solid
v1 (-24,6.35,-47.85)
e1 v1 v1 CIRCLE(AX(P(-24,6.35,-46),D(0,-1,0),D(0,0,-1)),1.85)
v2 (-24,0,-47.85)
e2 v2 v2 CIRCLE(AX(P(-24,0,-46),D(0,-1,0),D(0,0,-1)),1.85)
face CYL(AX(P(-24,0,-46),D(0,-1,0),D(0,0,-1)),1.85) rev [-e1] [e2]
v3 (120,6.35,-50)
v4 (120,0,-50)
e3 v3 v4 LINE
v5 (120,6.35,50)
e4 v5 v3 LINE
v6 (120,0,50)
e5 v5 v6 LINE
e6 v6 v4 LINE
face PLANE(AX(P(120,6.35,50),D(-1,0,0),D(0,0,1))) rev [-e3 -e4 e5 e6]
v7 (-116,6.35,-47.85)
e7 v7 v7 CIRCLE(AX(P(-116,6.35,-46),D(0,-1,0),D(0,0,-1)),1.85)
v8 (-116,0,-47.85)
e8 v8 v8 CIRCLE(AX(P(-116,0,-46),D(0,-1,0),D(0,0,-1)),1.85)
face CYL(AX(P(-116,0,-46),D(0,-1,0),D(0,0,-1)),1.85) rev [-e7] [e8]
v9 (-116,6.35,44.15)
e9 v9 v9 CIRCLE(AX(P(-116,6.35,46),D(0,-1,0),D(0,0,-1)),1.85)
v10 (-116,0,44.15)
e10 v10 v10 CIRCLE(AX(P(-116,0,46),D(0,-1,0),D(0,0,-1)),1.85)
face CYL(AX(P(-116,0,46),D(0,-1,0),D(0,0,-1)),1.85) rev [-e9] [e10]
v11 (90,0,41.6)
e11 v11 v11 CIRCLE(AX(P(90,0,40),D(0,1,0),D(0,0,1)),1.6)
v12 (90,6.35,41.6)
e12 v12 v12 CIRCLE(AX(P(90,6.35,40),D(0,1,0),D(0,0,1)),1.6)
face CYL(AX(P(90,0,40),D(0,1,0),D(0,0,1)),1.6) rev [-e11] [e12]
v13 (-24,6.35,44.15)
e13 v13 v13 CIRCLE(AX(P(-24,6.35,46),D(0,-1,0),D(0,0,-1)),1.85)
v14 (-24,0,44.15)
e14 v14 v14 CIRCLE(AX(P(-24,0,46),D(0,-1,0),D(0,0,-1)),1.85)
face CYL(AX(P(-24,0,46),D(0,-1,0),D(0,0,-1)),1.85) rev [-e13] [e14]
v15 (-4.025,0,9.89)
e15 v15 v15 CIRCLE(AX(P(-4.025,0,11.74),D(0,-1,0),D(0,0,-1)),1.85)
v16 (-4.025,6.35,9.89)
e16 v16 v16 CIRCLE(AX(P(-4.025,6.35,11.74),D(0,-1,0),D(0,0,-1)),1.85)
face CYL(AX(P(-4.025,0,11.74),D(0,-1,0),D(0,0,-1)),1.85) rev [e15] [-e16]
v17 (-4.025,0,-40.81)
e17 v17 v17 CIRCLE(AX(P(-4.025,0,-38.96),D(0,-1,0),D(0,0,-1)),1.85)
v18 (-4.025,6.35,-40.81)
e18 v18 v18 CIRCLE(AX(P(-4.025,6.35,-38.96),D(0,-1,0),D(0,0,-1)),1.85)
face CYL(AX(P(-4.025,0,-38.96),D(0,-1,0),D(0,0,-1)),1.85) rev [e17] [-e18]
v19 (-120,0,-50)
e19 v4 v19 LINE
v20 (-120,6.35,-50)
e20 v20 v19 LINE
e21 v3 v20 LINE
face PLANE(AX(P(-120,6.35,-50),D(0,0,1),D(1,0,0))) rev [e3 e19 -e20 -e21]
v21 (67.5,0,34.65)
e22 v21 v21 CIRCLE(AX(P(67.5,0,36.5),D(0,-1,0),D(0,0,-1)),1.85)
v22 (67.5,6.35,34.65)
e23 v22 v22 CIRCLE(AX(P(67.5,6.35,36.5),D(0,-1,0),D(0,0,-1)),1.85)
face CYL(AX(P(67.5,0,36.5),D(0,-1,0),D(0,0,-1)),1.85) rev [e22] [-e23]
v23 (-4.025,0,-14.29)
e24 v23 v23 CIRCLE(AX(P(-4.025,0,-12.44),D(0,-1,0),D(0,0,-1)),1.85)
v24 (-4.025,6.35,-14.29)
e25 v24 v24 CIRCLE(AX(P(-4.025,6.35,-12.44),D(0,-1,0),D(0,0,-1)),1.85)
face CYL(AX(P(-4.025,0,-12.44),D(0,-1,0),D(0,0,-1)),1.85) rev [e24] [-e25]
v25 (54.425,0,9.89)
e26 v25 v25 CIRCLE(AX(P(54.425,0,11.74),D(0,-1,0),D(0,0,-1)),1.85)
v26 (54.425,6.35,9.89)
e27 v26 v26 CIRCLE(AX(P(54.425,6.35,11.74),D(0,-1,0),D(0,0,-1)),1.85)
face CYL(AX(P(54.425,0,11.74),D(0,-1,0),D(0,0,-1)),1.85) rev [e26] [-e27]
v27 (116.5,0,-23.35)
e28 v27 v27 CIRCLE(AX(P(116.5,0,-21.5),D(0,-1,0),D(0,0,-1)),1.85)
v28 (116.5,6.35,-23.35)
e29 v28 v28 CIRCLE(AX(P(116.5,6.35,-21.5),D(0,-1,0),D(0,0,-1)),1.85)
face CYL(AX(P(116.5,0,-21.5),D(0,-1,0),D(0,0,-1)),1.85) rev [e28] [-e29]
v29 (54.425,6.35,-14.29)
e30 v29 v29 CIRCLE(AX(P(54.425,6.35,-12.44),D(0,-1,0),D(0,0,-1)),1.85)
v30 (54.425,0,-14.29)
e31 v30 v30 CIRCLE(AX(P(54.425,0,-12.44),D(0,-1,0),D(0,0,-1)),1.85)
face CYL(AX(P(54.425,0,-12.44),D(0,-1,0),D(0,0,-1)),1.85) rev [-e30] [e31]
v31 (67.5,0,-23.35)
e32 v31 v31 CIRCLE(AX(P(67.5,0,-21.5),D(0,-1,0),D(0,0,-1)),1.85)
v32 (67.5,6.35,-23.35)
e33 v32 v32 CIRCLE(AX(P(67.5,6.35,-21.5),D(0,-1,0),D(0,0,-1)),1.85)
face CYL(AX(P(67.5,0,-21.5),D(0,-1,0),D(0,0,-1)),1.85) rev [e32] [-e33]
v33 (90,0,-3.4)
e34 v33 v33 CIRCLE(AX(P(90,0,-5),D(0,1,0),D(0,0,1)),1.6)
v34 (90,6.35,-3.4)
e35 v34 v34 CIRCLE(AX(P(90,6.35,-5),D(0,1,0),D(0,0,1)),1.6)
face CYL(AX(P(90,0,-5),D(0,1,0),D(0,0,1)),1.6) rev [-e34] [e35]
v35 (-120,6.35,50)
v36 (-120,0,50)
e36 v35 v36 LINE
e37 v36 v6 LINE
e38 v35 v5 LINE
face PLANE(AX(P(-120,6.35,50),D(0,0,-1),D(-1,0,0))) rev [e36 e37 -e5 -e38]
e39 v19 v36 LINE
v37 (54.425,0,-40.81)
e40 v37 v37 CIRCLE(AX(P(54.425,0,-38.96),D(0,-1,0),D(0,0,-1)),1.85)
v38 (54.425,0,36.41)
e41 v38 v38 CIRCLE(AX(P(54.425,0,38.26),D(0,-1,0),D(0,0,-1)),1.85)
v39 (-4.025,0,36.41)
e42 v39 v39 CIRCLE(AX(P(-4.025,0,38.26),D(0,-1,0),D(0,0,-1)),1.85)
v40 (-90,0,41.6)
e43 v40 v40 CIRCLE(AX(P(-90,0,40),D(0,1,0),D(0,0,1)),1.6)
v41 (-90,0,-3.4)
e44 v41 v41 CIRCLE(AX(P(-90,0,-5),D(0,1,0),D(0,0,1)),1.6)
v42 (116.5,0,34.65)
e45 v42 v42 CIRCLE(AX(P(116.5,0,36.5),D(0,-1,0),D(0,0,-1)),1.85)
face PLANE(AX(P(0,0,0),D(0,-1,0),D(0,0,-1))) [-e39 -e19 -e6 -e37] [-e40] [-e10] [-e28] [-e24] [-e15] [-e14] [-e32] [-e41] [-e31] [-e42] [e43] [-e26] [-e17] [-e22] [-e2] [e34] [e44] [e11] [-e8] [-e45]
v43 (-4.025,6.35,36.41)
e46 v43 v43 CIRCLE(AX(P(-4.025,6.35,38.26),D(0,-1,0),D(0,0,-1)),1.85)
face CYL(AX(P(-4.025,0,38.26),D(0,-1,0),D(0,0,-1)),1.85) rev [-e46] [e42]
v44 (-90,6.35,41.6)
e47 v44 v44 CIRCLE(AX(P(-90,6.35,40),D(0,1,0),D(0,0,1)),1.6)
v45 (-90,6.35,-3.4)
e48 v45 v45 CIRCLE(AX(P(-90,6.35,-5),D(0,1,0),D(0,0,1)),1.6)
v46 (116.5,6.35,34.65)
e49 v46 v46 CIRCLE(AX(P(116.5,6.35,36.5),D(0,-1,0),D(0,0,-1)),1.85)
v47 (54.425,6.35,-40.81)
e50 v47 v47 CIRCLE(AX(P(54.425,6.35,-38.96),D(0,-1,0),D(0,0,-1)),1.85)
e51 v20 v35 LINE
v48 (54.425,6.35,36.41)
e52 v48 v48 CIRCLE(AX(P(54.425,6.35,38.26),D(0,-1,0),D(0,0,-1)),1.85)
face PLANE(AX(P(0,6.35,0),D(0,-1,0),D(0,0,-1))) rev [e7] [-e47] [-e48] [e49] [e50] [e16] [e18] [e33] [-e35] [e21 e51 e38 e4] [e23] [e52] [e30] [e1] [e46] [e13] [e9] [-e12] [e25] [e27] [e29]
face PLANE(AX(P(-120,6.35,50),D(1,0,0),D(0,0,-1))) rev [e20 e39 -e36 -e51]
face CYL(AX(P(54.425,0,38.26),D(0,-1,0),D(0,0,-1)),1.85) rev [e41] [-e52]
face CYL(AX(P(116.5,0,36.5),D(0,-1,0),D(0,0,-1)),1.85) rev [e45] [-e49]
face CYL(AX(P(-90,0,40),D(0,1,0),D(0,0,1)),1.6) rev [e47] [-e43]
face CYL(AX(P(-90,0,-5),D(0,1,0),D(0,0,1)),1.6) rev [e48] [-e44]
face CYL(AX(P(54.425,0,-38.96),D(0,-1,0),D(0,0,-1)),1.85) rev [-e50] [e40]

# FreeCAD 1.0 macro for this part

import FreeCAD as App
import Part
import Sketcher

V = App.Vector
Q = App.Units.Quantity

doc = App.newDocument("Part")
body = doc.addObject("PartDesign::Body", "Body")

# Sketch on XZ plane
sketch1 = body.newObject("Sketcher::SketchObject", "Sketch")
sketch1.AttachmentSupport = (doc.getObject("XZ_Plane"), [""])
sketch1.MapMode = "FlatFace"
sketch1.addGeometry([
    Part.LineSegment(V(-120, -50, 0), V(-120, 50, 0)),
    Part.LineSegment(V(-120, 50, 0), V(120, 50, 0)),
    Part.LineSegment(V(120, 50, 0), V(120, -50, 0)),
    Part.LineSegment(V(120, -50, 0), V(-120, -50, 0)),
], False)
sketch1.addConstraint([
    Sketcher.Constraint("Coincident", 0, 2, 1, 1),
    Sketcher.Constraint("Coincident", 1, 2, 2, 1),
    Sketcher.Constraint("Coincident", 2, 2, 3, 1),
    Sketcher.Constraint("Coincident", 3, 2, 0, 1),
    Sketcher.Constraint("Vertical", 0),
    Sketcher.Constraint("Horizontal", 1),
    Sketcher.Constraint("Vertical", 2),
    Sketcher.Constraint("Horizontal", 3),
    Sketcher.Constraint("Symmetric", 0, 2, 2, 2, -1, 1),
    Sketcher.Constraint("DistanceX", 1, 1, 1, 2, Q("240 mm")),
    Sketcher.Constraint("DistanceY", 0, 1, 0, 2, Q("100 mm")),
])
pad1 = body.newObject("PartDesign::Pad", "Pad")
pad1.Profile = sketch1
pad1.Length = 6.35
pad1.Reversed = True

# Sketch on XZ plane
sketch2 = body.newObject("Sketcher::SketchObject", "Sketch001")
sketch2.AttachmentSupport = (doc.getObject("XZ_Plane"), [""])
sketch2.MapMode = "FlatFace"
sketch2.addGeometry([
    Part.Circle(V(-4.025, -12.44, 0), V(0, 0, 1), 1.85),  # 0
    Part.Circle(V(-24, -46, 0), V(0, 0, 1), 1.85),  # 1
    Part.Circle(V(-4.025, -38.96, 0), V(0, 0, 1), 1.85),  # 2
    Part.Circle(V(-4.025, 11.74, 0), V(0, 0, 1), 1.85),  # 3
    Part.Circle(V(-4.025, 38.26, 0), V(0, 0, 1), 1.85),  # 4
    Part.Circle(V(-24, 46, 0), V(0, 0, 1), 1.85),  # 5
    Part.Circle(V(-116, 46, 0), V(0, 0, 1), 1.85),  # 6
    Part.Circle(V(54.425, 38.26, 0), V(0, 0, 1), 1.85),  # 7
    Part.Circle(V(54.425, 11.74, 0), V(0, 0, 1), 1.85),  # 8
    Part.Circle(V(54.425, -12.44, 0), V(0, 0, 1), 1.85),  # 9
    Part.Circle(V(54.425, -38.96, 0), V(0, 0, 1), 1.85),  # 10
    Part.Circle(V(116.5, 36.5, 0), V(0, 0, 1), 1.85),  # 11
    Part.Circle(V(116.5, -21.5, 0), V(0, 0, 1), 1.85),  # 12
    Part.Circle(V(67.5, -21.5, 0), V(0, 0, 1), 1.85),  # 13
    Part.Circle(V(67.5, 36.5, 0), V(0, 0, 1), 1.85),  # 14
    Part.Circle(V(-116, -46, 0), V(0, 0, 1), 1.85),  # 15
], False)
sketch2.addConstraint([
    Sketcher.Constraint("Equal", 0, 1),
    Sketcher.Constraint("Equal", 1, 2),
    Sketcher.Constraint("Equal", 2, 3),
    Sketcher.Constraint("Equal", 3, 4),
    Sketcher.Constraint("Equal", 4, 5),
    Sketcher.Constraint("Equal", 5, 6),
    Sketcher.Constraint("Equal", 6, 7),
    Sketcher.Constraint("Equal", 7, 8),
    Sketcher.Constraint("Equal", 8, 9),
    Sketcher.Constraint("Equal", 9, 10),
    Sketcher.Constraint("Equal", 10, 11),
    Sketcher.Constraint("Equal", 11, 12),
    Sketcher.Constraint("Equal", 12, 13),
    Sketcher.Constraint("Equal", 13, 14),
    Sketcher.Constraint("Equal", 14, 15),
    Sketcher.Constraint("Symmetric", 1, 3, 5, 3, -1),
    Sketcher.Constraint("Symmetric", 6, 3, 15, 3, -1),
    Sketcher.Constraint("Horizontal", 5, 3, 6, 3),
    Sketcher.Constraint("Horizontal", 4, 3, 7, 3),
    Sketcher.Constraint("Horizontal", 3, 3, 8, 3),
    Sketcher.Constraint("Horizontal", 0, 3, 9, 3),
    Sketcher.Constraint("Horizontal", 2, 3, 10, 3),
    Sketcher.Constraint("Horizontal", 12, 3, 13, 3),
    Sketcher.Constraint("Horizontal", 11, 3, 14, 3),
    Sketcher.Constraint("Vertical", 0, 3, 2, 3),
    Sketcher.Constraint("Vertical", 2, 3, 3, 3),
    Sketcher.Constraint("Vertical", 3, 3, 4, 3),
    Sketcher.Constraint("Vertical", 7, 3, 8, 3),
    Sketcher.Constraint("Vertical", 8, 3, 9, 3),
    Sketcher.Constraint("Vertical", 9, 3, 10, 3),
    Sketcher.Constraint("Vertical", 11, 3, 12, 3),
    Sketcher.Constraint("Vertical", 13, 3, 14, 3),
    Sketcher.Constraint("Diameter", 0, Q("3.7 mm")),
    Sketcher.Constraint("DistanceX", 1, 3, -1, 1, Q("24 mm")),
    Sketcher.Constraint("DistanceY", 1, 3, -1, 1, Q("46 mm")),
    Sketcher.Constraint("DistanceX", 6, 3, -1, 1, Q("116 mm")),
    Sketcher.Constraint("DistanceY", 12, 3, 11, 3, Q("58 mm")),
    Sketcher.Constraint("DistanceX", 13, 3, 12, 3, Q("49 mm")),
    Sketcher.Constraint("DistanceX", -1, 1, 11, 3, Q("116.5 mm")),
    Sketcher.Constraint("DistanceY", -1, 1, 11, 3, Q("36.5 mm")),
    Sketcher.Constraint("DistanceY", 2, 3, 3, 3, Q("50.7 mm")),
    Sketcher.Constraint("DistanceY", 0, 3, 4, 3, Q("50.7 mm")),
    Sketcher.Constraint("DistanceY", 0, 3, -1, 1, Q("12.44 mm")),
    Sketcher.Constraint("DistanceY", 2, 3, -1, 1, Q("38.96 mm")),
    Sketcher.Constraint("DistanceX", 4, 3, 7, 3, Q("58.45 mm")),
    Sketcher.Constraint("DistanceX", 0, 3, -1, 1, Q("4.025 mm")),
])
doc.recompute()
hole = body.newObject("PartDesign::Hole", "Hole")
hole.Profile = sketch2
hole.ThreadType = "None"
hole.Diameter = 3.7
hole.DepthType = "ThroughAll"

# Sketch on XZ plane
sketch3 = body.newObject("Sketcher::SketchObject", "Sketch002")
sketch3.AttachmentSupport = (doc.getObject("XZ_Plane"), [""])
sketch3.MapMode = "FlatFace"
sketch3.AttachmentOffset = App.Placement(V(0, 0, -6.35), App.Rotation())
sketch3.addGeometry([
    Part.Circle(V(-90, -5, 0), V(0, 0, 1), 1.6),
    Part.Circle(V(-90, 40, 0), V(0, 0, 1), 1.6),
    Part.Circle(V(90, -5, 0), V(0, 0, 1), 1.6),
    Part.Circle(V(90, 40, 0), V(0, 0, 1), 1.6),
], False)
sketch3.addConstraint([
    Sketcher.Constraint("Equal", 0, 1),
    Sketcher.Constraint("Equal", 1, 2),
    Sketcher.Constraint("Equal", 2, 3),
    Sketcher.Constraint("Symmetric", 0, 3, 2, 3, -2),
    Sketcher.Constraint("Symmetric", 1, 3, 3, 3, -2),
    Sketcher.Constraint("Vertical", 0, 3, 1, 3),
    Sketcher.Constraint("Diameter", 0, Q("3.2 mm")),
    Sketcher.Constraint("DistanceX", 0, 3, -1, 1, Q("90 mm")),
    Sketcher.Constraint("DistanceY", 0, 3, -1, 1, Q("5 mm")),
    Sketcher.Constraint("DistanceY", -1, 1, 1, 3, Q("40 mm")),
])
pocket1 = body.newObject("PartDesign::Pocket", "Pocket")
pocket1.Profile = sketch3
pocket1.Type = "ThroughAll"
pocket1.Reversed = True

doc.recompute()
